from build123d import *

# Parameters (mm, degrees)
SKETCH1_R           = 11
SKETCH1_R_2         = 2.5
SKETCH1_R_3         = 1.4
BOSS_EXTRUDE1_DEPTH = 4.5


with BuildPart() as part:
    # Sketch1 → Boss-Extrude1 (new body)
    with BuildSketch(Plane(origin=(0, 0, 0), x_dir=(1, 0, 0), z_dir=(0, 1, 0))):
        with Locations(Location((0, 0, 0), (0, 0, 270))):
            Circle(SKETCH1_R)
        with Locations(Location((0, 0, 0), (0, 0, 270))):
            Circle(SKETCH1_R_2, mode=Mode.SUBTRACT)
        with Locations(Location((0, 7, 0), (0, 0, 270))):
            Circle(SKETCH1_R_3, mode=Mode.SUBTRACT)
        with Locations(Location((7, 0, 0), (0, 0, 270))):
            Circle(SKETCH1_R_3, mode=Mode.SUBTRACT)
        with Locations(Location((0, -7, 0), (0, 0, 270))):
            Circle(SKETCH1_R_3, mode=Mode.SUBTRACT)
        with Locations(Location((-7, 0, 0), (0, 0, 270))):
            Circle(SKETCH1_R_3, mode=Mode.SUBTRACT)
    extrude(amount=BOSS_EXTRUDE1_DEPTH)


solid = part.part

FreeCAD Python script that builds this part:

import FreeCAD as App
import Part
import Sketcher

V = App.Vector

doc = App.newDocument("Part")
params = doc.addObject("Spreadsheet::Sheet", "Params")
for row, (alias, value) in enumerate([
    ("sketch1_diameter", "22 mm"),
    ("sketch1_diameter2", "5 mm"),
    ("sketch1_diameter3", "2.8 mm"),
    ("pad1_length", "4.5 mm"),
], start=1):
    params.set(f"A{row}", alias)
    params.set(f"B{row}", "=" + value)
    params.setAlias(f"B{row}", alias)

body = doc.addObject("PartDesign::Body", "Body")

sketch1 = doc.addObject("Sketcher::SketchObject", "Sketch")
body.addObject(sketch1)
sketch1.AttachmentSupport = (doc.XZ_Plane, [""])
sketch1.MapMode = "FlatFace"
sketch1.addGeometry([
    Part.Circle(V(0, 0, 0), V(0, 0, 1), 11),
    Part.Circle(V(0, -7, 0), V(0, 0, 1), 1.4),
    Part.Circle(V(-7, 0, 0), V(0, 0, 1), 1.4),
    Part.Circle(V(0, 0, 0), V(0, 0, 1), 2.5),
    Part.Circle(V(7, 0, 0), V(0, 0, 1), 1.4),
    Part.Circle(V(0, 7, 0), V(0, 0, 1), 1.4),
], False)
sketch1.addConstraint([
    Sketcher.Constraint("Coincident", 0, 3, -1, 1),
    Sketcher.Constraint("Coincident", 3, 3, -1, 1),
    Sketcher.Constraint("Equal", 1, 2),
    Sketcher.Constraint("Equal", 2, 4),
    Sketcher.Constraint("Equal", 4, 5),
    Sketcher.Constraint("Symmetric", 2, 3, 4, 3, -1, 1),
    Sketcher.Constraint("Symmetric", 1, 3, 5, 3, -1, 1),
    Sketcher.Constraint("PointOnObject", 1, 3, -2),
    Sketcher.Constraint("PointOnObject", 2, 3, -1),
    Sketcher.Constraint("Diameter", 0, 22.0),
    Sketcher.Constraint("Diameter", 3, 5.0),
    Sketcher.Constraint("Diameter", 1, 2.8),
    Sketcher.Constraint("DistanceY", 1, 3, -1, 1, 7.0),
    Sketcher.Constraint("DistanceX", 2, 3, -1, 1, 7.0),
])
sketch1.setExpression("Constraints[9]", "Params.sketch1_diameter")
sketch1.setExpression("Constraints[10]", "Params.sketch1_diameter2")
sketch1.setExpression("Constraints[11]", "Params.sketch1_diameter3")
pad1 = doc.addObject("PartDesign::Pad", "Pad")
body.addObject(pad1)
pad1.Profile = sketch1
pad1.setExpression("Length", "Params.pad1_length")
pad1.Reversed = True

doc.recompute()
